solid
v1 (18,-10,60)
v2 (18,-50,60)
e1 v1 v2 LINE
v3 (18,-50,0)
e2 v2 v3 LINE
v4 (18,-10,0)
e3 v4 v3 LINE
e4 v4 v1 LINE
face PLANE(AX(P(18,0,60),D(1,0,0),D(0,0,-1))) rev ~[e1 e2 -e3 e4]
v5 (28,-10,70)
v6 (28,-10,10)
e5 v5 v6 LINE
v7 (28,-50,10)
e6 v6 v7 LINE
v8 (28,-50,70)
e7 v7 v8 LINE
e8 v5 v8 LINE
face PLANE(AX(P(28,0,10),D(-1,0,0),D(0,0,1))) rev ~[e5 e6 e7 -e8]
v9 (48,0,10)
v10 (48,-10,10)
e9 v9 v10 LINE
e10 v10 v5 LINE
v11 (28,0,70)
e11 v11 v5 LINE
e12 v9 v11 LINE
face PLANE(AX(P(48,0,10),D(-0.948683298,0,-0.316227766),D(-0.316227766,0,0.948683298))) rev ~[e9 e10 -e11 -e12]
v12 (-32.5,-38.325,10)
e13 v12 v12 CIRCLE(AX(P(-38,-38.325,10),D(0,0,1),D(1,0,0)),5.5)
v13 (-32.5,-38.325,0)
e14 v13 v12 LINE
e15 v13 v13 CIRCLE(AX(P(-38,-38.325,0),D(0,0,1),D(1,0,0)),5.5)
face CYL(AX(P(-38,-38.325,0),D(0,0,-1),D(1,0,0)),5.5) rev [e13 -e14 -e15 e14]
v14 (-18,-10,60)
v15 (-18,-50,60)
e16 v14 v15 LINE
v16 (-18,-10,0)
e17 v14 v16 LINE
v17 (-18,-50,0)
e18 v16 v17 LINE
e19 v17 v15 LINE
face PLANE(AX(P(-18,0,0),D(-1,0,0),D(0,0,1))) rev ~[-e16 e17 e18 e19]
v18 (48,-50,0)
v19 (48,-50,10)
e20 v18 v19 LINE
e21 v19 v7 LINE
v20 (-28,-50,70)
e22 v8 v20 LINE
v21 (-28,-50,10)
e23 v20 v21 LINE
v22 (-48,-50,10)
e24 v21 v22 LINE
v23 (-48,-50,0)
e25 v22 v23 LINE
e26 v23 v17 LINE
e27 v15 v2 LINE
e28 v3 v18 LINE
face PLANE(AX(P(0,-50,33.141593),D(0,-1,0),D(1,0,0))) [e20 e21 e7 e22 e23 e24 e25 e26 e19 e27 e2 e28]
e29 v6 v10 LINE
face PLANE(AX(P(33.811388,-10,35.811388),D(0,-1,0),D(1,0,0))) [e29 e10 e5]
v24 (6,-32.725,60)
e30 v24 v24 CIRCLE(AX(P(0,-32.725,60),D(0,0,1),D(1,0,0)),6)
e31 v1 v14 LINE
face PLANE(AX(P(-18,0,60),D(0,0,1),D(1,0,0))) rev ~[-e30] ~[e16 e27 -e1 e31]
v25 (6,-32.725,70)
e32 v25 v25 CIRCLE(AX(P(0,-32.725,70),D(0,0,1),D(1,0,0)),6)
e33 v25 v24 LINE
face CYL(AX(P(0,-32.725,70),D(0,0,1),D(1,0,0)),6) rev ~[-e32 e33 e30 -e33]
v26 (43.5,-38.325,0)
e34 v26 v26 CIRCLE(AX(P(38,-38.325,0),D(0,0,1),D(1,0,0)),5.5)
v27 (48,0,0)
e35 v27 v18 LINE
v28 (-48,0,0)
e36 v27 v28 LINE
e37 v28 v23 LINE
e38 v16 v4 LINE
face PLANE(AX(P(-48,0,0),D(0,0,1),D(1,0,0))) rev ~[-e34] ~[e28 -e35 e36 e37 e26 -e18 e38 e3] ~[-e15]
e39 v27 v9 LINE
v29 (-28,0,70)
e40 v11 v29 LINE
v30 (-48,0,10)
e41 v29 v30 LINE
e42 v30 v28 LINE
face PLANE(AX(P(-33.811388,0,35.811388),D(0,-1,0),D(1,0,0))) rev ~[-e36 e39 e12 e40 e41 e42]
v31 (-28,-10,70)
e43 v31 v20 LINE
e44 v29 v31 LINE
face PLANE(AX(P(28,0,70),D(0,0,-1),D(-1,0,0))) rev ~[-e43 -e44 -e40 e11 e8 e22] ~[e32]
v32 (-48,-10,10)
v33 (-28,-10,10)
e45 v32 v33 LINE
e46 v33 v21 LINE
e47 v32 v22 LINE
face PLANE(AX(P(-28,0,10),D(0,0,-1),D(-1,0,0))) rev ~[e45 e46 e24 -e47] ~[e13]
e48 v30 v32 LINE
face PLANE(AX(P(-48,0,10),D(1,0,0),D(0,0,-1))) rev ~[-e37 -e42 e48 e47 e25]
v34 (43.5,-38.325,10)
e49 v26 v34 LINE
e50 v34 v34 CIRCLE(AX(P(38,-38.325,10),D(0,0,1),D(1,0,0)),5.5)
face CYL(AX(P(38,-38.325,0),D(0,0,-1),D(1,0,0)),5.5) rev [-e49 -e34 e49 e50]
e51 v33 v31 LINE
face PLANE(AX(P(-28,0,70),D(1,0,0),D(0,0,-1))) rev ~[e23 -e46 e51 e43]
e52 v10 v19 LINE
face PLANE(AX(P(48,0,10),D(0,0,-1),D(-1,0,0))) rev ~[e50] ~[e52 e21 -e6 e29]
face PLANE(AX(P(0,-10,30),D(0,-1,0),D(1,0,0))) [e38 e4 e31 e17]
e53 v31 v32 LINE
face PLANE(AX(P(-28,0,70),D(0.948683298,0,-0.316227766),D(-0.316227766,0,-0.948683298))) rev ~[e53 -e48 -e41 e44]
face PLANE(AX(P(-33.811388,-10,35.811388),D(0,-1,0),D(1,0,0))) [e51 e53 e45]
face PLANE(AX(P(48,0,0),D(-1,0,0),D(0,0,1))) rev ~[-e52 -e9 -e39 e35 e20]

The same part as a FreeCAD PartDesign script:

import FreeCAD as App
import Part
import Sketcher
from FreeCAD import Vector

doc = App.newDocument("Part")
params = doc.addObject("Spreadsheet::Sheet", "Params")
for row, (alias, value) in enumerate([
    ("sketch1_width", "30 mm"),
    ("sketch1_width2", "36 mm"),
    ("sketch1_width3", "20 mm"),
    ("sketch1_height", "10 mm"),
    ("sketch1_height2", "60 mm"),
    ("pad1_length", "50 mm"),
    ("sketch2_width", "20 mm"),
    ("sketch2_width2", "36 mm"),
    ("sketch2_height", "60 mm"),
    ("pad2_length", "10 mm"),
    ("sketch3_diameter", "11 mm"),
    ("pocket1_length", "10 mm"),
    ("sketch4_diameter", "12 mm"),
    ("pocket2_length", "12 mm"),
], start=1):
    params.set(f"A{row}", alias)
    params.set(f"B{row}", "=" + value)
    params.setAlias(f"B{row}", alias)

body = doc.addObject("PartDesign::Body", "Body")

# Sketch on XZ plane
sketch1 = body.newObject("Sketcher::SketchObject", "Sketch")
sketch1.AttachmentSupport = (doc.getObject("XZ_Plane"), [""])
sketch1.MapMode = "FlatFace"
sketch1.addGeometry(Part.LineSegment(Vector(-48, 10, 0), Vector(-48, 0, 0)), False)
sketch1.addGeometry(Part.LineSegment(Vector(-48, 0, 0), Vector(-18, 0, 0)), False)
sketch1.addGeometry(Part.LineSegment(Vector(-18, 0, 0), Vector(-18, 60, 0)), False)
sketch1.addGeometry(Part.LineSegment(Vector(-18, 60, 0), Vector(18, 60, 0)), False)
sketch1.addGeometry(Part.LineSegment(Vector(18, 60, 0), Vector(18, 0, 0)), False)
sketch1.addGeometry(Part.LineSegment(Vector(18, 0, 0), Vector(48, 0, 0)), False)
sketch1.addGeometry(Part.LineSegment(Vector(48, 0, 0), Vector(48, 10, 0)), False)
sketch1.addGeometry(Part.LineSegment(Vector(48, 10, 0), Vector(28, 10, 0)), False)
sketch1.addGeometry(Part.LineSegment(Vector(28, 10, 0), Vector(28, 70, 0)), False)
sketch1.addGeometry(Part.LineSegment(Vector(28, 70, 0), Vector(-28, 70, 0)), False)
sketch1.addGeometry(Part.LineSegment(Vector(-28, 70, 0), Vector(-28, 10, 0)), False)
sketch1.addGeometry(Part.LineSegment(Vector(-28, 10, 0), Vector(-48, 10, 0)), False)
sketch1.addConstraint(Sketcher.Constraint("Coincident", 0, 2, 1, 1))
sketch1.addConstraint(Sketcher.Constraint("Coincident", 1, 2, 2, 1))
sketch1.addConstraint(Sketcher.Constraint("Coincident", 2, 2, 3, 1))
sketch1.addConstraint(Sketcher.Constraint("Coincident", 3, 2, 4, 1))
sketch1.addConstraint(Sketcher.Constraint("Coincident", 4, 2, 5, 1))
sketch1.addConstraint(Sketcher.Constraint("Coincident", 5, 2, 6, 1))
sketch1.addConstraint(Sketcher.Constraint("Coincident", 6, 2, 7, 1))
sketch1.addConstraint(Sketcher.Constraint("Coincident", 7, 2, 8, 1))
sketch1.addConstraint(Sketcher.Constraint("Coincident", 8, 2, 9, 1))
sketch1.addConstraint(Sketcher.Constraint("Coincident", 9, 2, 10, 1))
sketch1.addConstraint(Sketcher.Constraint("Coincident", 10, 2, 11, 1))
sketch1.addConstraint(Sketcher.Constraint("Coincident", 11, 2, 0, 1))
sketch1.addConstraint(Sketcher.Constraint("Vertical", 0))
sketch1.addConstraint(Sketcher.Constraint("Horizontal", 1))
sketch1.addConstraint(Sketcher.Constraint("Vertical", 2))
sketch1.addConstraint(Sketcher.Constraint("Horizontal", 3))
sketch1.addConstraint(Sketcher.Constraint("Vertical", 4))
sketch1.addConstraint(Sketcher.Constraint("Horizontal", 5))
sketch1.addConstraint(Sketcher.Constraint("Vertical", 6))
sketch1.addConstraint(Sketcher.Constraint("Horizontal", 7))
sketch1.addConstraint(Sketcher.Constraint("Vertical", 8))
sketch1.addConstraint(Sketcher.Constraint("Horizontal", 9))
sketch1.addConstraint(Sketcher.Constraint("Vertical", 10))
sketch1.addConstraint(Sketcher.Constraint("Horizontal", 11))
sketch1.addConstraint(Sketcher.Constraint("Symmetric", 1, 2, 4, 2, -1, 1))
sketch1.addConstraint(Sketcher.Constraint("Symmetric", 0, 2, 5, 2, -2))
sketch1.addConstraint(Sketcher.Constraint("Symmetric", 7, 2, 10, 2, -2))
sketch1.addConstraint(Sketcher.Constraint("Equal", 4, 8))
sketch1.addConstraint(Sketcher.Constraint("DistanceX", 1, 1, 1, 2, 30.0))
sketch1.addConstraint(Sketcher.Constraint("DistanceX", 3, 1, 3, 2, 36.0))
sketch1.addConstraint(Sketcher.Constraint("DistanceX", 7, 2, 7, 1, 20.0))
sketch1.addConstraint(Sketcher.Constraint("DistanceY", 0, 2, 0, 1, 10.0))
sketch1.addConstraint(Sketcher.Constraint("DistanceY", 2, 1, 2, 2, 60.0))
sketch1.setExpression("Constraints[28]", "Params.sketch1_width")
sketch1.setExpression("Constraints[29]", "Params.sketch1_width2")
sketch1.setExpression("Constraints[30]", "Params.sketch1_width3")
sketch1.setExpression("Constraints[31]", "Params.sketch1_height")
sketch1.setExpression("Constraints[32]", "Params.sketch1_height2")
pad1 = body.newObject("PartDesign::Pad", "Pad")
pad1.Profile = sketch1
pad1.setExpression("Length", "Params.pad1_length")

# Sketch on XZ plane
sketch2 = body.newObject("Sketcher::SketchObject", "Sketch001")
sketch2.AttachmentSupport = (doc.getObject("XZ_Plane"), [""])
sketch2.MapMode = "FlatFace"
sketch2.addGeometry(Part.LineSegment(Vector(-28, 70, 0), Vector(-48, 10, 0)), False)
sketch2.addGeometry(Part.LineSegment(Vector(-48, 10, 0), Vector(-28, 10, 0)), False)
sketch2.addGeometry(Part.LineSegment(Vector(-28, 10, 0), Vector(-28, 70, 0)), False)
sketch2.addGeometry(Part.LineSegment(Vector(48, 10, 0), Vector(28, 70, 0)), False)
sketch2.addGeometry(Part.LineSegment(Vector(28, 70, 0), Vector(28, 10, 0)), False)
sketch2.addGeometry(Part.LineSegment(Vector(28, 10, 0), Vector(48, 10, 0)), False)
sketch2.addGeometry(Part.LineSegment(Vector(-18, 60, 0), Vector(-18, 0, 0)), False)
sketch2.addGeometry(Part.LineSegment(Vector(-18, 0, 0), Vector(18, 0, 0)), False)
sketch2.addGeometry(Part.LineSegment(Vector(18, 0, 0), Vector(18, 60, 0)), False)
sketch2.addGeometry(Part.LineSegment(Vector(18, 60, 0), Vector(-18, 60, 0)), False)
sketch2.addConstraint(Sketcher.Constraint("Coincident", 0, 2, 1, 1))
sketch2.addConstraint(Sketcher.Constraint("Coincident", 1, 2, 2, 1))
sketch2.addConstraint(Sketcher.Constraint("Coincident", 2, 2, 0, 1))
sketch2.addConstraint(Sketcher.Constraint("Coincident", 3, 2, 4, 1))
sketch2.addConstraint(Sketcher.Constraint("Coincident", 4, 2, 5, 1))
sketch2.addConstraint(Sketcher.Constraint("Coincident", 5, 2, 3, 1))
sketch2.addConstraint(Sketcher.Constraint("Coincident", 6, 2, 7, 1))
sketch2.addConstraint(Sketcher.Constraint("Coincident", 7, 2, 8, 1))
sketch2.addConstraint(Sketcher.Constraint("Coincident", 8, 2, 9, 1))
sketch2.addConstraint(Sketcher.Constraint("Coincident", 9, 2, 6, 1))
sketch2.addConstraint(Sketcher.Constraint("Horizontal", 1))
sketch2.addConstraint(Sketcher.Constraint("Vertical", 2))
sketch2.addConstraint(Sketcher.Constraint("Vertical", 4))
sketch2.addConstraint(Sketcher.Constraint("Horizontal", 5))
sketch2.addConstraint(Sketcher.Constraint("Vertical", 6))
sketch2.addConstraint(Sketcher.Constraint("Horizontal", 7))
sketch2.addConstraint(Sketcher.Constraint("Vertical", 8))
sketch2.addConstraint(Sketcher.Constraint("Horizontal", 9))
sketch2.addConstraint(Sketcher.Constraint("Symmetric", 6, 2, 7, 2, -1, 1))
sketch2.addConstraint(Sketcher.Constraint("Symmetric", 2, 2, 3, 2, -2))
sketch2.addConstraint(Sketcher.Constraint("Symmetric", 0, 2, 5, 2, -2))
sketch2.addConstraint(Sketcher.Constraint("Equal", 4, 6))
sketch2.addConstraint(Sketcher.Constraint("DistanceX", 1, 1, 1, 2, 20.0))
sketch2.addConstraint(Sketcher.Constraint("DistanceX", 7, 1, 7, 2, 36.0))
sketch2.addConstraint(Sketcher.Constraint("DistanceY", 2, 1, 2, 2, 60.0))
sketch2.addConstraint(Sketcher.Constraint("DistanceX", 0, 2, -1, 1, 48.0))
sketch2.addConstraint(Sketcher.Constraint("DistanceY", -1, 1, 0, 2, 10.0))
sketch2.setExpression("Constraints[22]", "Params.sketch2_width")
sketch2.setExpression("Constraints[23]", "Params.sketch2_width2")
sketch2.setExpression("Constraints[24]", "Params.sketch2_height")
pad2 = body.newObject("PartDesign::Pad", "Pad001")
pad2.Profile = sketch2
pad2.setExpression("Length", "Params.pad2_length")

# Sketch on XY plane
sketch3 = body.newObject("Sketcher::SketchObject", "Sketch002")
sketch3.AttachmentSupport = (doc.getObject("XY_Plane"), [""])
sketch3.MapMode = "FlatFace"
sketch3.addGeometry(Part.Circle(Vector(-38, -38, 0), Vector(0, 0, 1), 6), False)
sketch3.addGeometry(Part.Circle(Vector(38, -38, 0), Vector(0, 0, 1), 6), False)
sketch3.addConstraint(Sketcher.Constraint("Equal", 0, 1))
sketch3.addConstraint(Sketcher.Constraint("Symmetric", 0, 3, 1, 3, -2))
sketch3.addConstraint(Sketcher.Constraint("Diameter", 0, 11.0))
sketch3.addConstraint(Sketcher.Constraint("DistanceX", 0, 3, -1, 1, 38.0))
sketch3.addConstraint(Sketcher.Constraint("DistanceY", 0, 3, -1, 1, 38.325))
sketch3.setExpression("Constraints[2]", "Params.sketch3_diameter")
pocket1 = body.newObject("PartDesign::Pocket", "Pocket")
pocket1.Profile = sketch3
pocket1.setExpression("Length", "Params.pocket1_length")
pocket1.Reversed = True

# Sketch on XY plane
sketch4 = body.newObject("Sketcher::SketchObject", "Sketch003")
sketch4.AttachmentSupport = (doc.getObject("XY_Plane"), [""])
sketch4.MapMode = "FlatFace"
sketch4.AttachmentOffset = App.Placement(Vector(0, 0, 70), App.Rotation())
sketch4.addGeometry(Part.Circle(Vector(0, -33, 0), Vector(0, 0, 1), 6), False)
sketch4.addConstraint(Sketcher.Constraint("PointOnObject", 0, 3, -2))
sketch4.addConstraint(Sketcher.Constraint("Diameter", 0, 12.0))
sketch4.addConstraint(Sketcher.Constraint("DistanceY", 0, 3, -1, 1, 32.725))
sketch4.setExpression("Constraints[1]", "Params.sketch4_diameter")
pocket2 = body.newObject("PartDesign::Pocket", "Pocket001")
pocket2.Profile = sketch4
pocket2.setExpression("Length", "Params.pocket2_length")

doc.recompute()
